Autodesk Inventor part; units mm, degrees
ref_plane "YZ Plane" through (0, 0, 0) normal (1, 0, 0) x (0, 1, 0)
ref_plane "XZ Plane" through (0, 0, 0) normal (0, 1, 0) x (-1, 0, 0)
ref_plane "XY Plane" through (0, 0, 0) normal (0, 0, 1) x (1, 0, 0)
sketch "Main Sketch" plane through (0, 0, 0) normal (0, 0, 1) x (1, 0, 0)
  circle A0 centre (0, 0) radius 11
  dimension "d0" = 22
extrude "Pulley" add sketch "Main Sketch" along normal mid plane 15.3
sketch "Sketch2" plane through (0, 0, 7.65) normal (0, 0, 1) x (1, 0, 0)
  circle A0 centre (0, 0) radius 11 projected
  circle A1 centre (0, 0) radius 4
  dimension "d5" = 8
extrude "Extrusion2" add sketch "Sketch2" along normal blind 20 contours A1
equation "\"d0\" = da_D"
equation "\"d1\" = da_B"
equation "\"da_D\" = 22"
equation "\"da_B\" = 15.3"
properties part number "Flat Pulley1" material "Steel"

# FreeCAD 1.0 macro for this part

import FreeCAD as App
import Part
import Sketcher
from FreeCAD import Vector
Q = App.Units.Quantity

doc = App.newDocument("Part")
body = doc.addObject("PartDesign::Body", "Body")

# Sketch on XY plane
sketch1 = body.newObject("Sketcher::SketchObject", "Sketch")
sketch1.AttachmentSupport = (doc.getObject("XY_Plane"), [""])
sketch1.MapMode = "FlatFace"
sketch1.addGeometry(Part.Circle(Vector(0, 0, 0), Vector(0, 0, 1), 11), False)
sketch1.addConstraint([
    Sketcher.Constraint("Coincident", 0, 3, -1, 1),
    Sketcher.Constraint("Diameter", 0, Q("22 mm")),
])
pad1 = body.newObject("PartDesign::Pad", "Pad")
pad1.Profile = sketch1
pad1.Length = 15.3
pad1.Midplane = True

# Sketch on XY plane
sketch2 = body.newObject("Sketcher::SketchObject", "Sketch001")
sketch2.AttachmentSupport = (doc.getObject("XY_Plane"), [""])
sketch2.MapMode = "FlatFace"
sketch2.AttachmentOffset = App.Placement(Vector(0, 0, 7.65), App.Rotation())
sketch2.addGeometry(Part.Circle(Vector(0, 0, 0), Vector(0, 0, 1), 4), False)
sketch2.addConstraint([
    Sketcher.Constraint("Coincident", 0, 3, -1, 1),
    Sketcher.Constraint("Diameter", 0, Q("8 mm")),
])
pad2 = body.newObject("PartDesign::Pad", "Pad001")
pad2.Profile = sketch2
pad2.Length = 20

doc.recompute()
